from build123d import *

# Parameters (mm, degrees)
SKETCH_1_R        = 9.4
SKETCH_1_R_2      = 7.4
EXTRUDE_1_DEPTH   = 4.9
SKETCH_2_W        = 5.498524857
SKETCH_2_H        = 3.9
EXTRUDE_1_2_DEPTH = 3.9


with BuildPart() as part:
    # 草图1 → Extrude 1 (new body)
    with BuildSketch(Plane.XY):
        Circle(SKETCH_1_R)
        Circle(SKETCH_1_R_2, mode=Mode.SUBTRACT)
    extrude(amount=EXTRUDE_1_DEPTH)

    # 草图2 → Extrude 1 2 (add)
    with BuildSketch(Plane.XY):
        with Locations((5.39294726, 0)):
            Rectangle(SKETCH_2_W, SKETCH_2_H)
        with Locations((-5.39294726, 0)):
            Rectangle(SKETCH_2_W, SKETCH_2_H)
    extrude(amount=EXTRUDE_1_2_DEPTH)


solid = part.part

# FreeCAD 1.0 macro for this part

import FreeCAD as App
import Part
import Sketcher

V = App.Vector


def add_polygon(sketch, points):
    """Adds a closed chain of lines whose ends are joined by coincident constraints."""
    first, n = sketch.GeometryCount, len(points)
    for a, b in zip(points, points[1:] + points[:1]):
        sketch.addGeometry(Part.LineSegment(App.Vector(*a, 0), App.Vector(*b, 0)), False)
    for i in range(n):
        sketch.addConstraint(Sketcher.Constraint("Coincident", first + i, 2, first + (i + 1) % n, 1))

doc = App.newDocument("Part")
body = doc.addObject("PartDesign::Body", "Body")

# Sketch on XY plane
sketch1 = body.newObject("Sketcher::SketchObject", "Sketch")
sketch1.AttachmentSupport = (doc.getObject("XY_Plane"), [""])
sketch1.MapMode = "FlatFace"
sketch1.addGeometry(Part.Circle(V(0, 0, 0), V(0, 0, 1), 9), False)
sketch1.addGeometry(Part.Circle(V(0, 0, 0), V(0, 0, 1), 7), False)
sketch1.addConstraint(Sketcher.Constraint("Coincident", 0, 3, -1, 1))
sketch1.addConstraint(Sketcher.Constraint("Coincident", 1, 3, -1, 1))
sketch1.addConstraint(Sketcher.Constraint("Diameter", 0, 18.8))
sketch1.addConstraint(Sketcher.Constraint("Diameter", 1, 14.8))
pad1 = body.newObject("PartDesign::Pad", "Pad")
pad1.Profile = sketch1
pad1.Length = 4.9

# Sketch on XY plane
sketch2 = body.newObject("Sketcher::SketchObject", "Sketch001")
sketch2.AttachmentSupport = (doc.getObject("XY_Plane"), [""])
sketch2.MapMode = "FlatFace"
add_polygon(sketch2, [(2.6, 1.9), (2.6, -1.9), (8.1, -1.9), (8.1, 1.9)])  # lines 0-3
add_polygon(sketch2, [(-8.1, 1.9), (-8.1, -1.9), (-2.6, -1.9), (-2.6, 1.9)])  # lines 4-7
sketch2.addConstraint(Sketcher.Constraint("Vertical", 0))
sketch2.addConstraint(Sketcher.Constraint("Horizontal", 1))
sketch2.addConstraint(Sketcher.Constraint("Vertical", 2))
sketch2.addConstraint(Sketcher.Constraint("Horizontal", 3))
sketch2.addConstraint(Sketcher.Constraint("Vertical", 4))
sketch2.addConstraint(Sketcher.Constraint("Horizontal", 5))
sketch2.addConstraint(Sketcher.Constraint("Vertical", 6))
sketch2.addConstraint(Sketcher.Constraint("Horizontal", 7))
sketch2.addConstraint(Sketcher.Constraint("Symmetric", 2, 2, 4, 2, -1, 1))
sketch2.addConstraint(Sketcher.Constraint("Symmetric", 0, 2, 6, 2, -1, 1))
sketch2.addConstraint(Sketcher.Constraint("Horizontal", 1, 2, 4, 2))
sketch2.addConstraint(Sketcher.Constraint("DistanceY", 0, 2, 0, 1, 3.9))
sketch2.addConstraint(Sketcher.Constraint("DistanceX", 1, 1, 1, 2, 5.498525))
sketch2.addConstraint(Sketcher.Constraint("DistanceX", -1, 1, 1, 2, 8.14221))
pad2 = body.newObject("PartDesign::Pad", "Pad001")
pad2.Profile = sketch2
pad2.Length = 3.9

doc.recompute()
